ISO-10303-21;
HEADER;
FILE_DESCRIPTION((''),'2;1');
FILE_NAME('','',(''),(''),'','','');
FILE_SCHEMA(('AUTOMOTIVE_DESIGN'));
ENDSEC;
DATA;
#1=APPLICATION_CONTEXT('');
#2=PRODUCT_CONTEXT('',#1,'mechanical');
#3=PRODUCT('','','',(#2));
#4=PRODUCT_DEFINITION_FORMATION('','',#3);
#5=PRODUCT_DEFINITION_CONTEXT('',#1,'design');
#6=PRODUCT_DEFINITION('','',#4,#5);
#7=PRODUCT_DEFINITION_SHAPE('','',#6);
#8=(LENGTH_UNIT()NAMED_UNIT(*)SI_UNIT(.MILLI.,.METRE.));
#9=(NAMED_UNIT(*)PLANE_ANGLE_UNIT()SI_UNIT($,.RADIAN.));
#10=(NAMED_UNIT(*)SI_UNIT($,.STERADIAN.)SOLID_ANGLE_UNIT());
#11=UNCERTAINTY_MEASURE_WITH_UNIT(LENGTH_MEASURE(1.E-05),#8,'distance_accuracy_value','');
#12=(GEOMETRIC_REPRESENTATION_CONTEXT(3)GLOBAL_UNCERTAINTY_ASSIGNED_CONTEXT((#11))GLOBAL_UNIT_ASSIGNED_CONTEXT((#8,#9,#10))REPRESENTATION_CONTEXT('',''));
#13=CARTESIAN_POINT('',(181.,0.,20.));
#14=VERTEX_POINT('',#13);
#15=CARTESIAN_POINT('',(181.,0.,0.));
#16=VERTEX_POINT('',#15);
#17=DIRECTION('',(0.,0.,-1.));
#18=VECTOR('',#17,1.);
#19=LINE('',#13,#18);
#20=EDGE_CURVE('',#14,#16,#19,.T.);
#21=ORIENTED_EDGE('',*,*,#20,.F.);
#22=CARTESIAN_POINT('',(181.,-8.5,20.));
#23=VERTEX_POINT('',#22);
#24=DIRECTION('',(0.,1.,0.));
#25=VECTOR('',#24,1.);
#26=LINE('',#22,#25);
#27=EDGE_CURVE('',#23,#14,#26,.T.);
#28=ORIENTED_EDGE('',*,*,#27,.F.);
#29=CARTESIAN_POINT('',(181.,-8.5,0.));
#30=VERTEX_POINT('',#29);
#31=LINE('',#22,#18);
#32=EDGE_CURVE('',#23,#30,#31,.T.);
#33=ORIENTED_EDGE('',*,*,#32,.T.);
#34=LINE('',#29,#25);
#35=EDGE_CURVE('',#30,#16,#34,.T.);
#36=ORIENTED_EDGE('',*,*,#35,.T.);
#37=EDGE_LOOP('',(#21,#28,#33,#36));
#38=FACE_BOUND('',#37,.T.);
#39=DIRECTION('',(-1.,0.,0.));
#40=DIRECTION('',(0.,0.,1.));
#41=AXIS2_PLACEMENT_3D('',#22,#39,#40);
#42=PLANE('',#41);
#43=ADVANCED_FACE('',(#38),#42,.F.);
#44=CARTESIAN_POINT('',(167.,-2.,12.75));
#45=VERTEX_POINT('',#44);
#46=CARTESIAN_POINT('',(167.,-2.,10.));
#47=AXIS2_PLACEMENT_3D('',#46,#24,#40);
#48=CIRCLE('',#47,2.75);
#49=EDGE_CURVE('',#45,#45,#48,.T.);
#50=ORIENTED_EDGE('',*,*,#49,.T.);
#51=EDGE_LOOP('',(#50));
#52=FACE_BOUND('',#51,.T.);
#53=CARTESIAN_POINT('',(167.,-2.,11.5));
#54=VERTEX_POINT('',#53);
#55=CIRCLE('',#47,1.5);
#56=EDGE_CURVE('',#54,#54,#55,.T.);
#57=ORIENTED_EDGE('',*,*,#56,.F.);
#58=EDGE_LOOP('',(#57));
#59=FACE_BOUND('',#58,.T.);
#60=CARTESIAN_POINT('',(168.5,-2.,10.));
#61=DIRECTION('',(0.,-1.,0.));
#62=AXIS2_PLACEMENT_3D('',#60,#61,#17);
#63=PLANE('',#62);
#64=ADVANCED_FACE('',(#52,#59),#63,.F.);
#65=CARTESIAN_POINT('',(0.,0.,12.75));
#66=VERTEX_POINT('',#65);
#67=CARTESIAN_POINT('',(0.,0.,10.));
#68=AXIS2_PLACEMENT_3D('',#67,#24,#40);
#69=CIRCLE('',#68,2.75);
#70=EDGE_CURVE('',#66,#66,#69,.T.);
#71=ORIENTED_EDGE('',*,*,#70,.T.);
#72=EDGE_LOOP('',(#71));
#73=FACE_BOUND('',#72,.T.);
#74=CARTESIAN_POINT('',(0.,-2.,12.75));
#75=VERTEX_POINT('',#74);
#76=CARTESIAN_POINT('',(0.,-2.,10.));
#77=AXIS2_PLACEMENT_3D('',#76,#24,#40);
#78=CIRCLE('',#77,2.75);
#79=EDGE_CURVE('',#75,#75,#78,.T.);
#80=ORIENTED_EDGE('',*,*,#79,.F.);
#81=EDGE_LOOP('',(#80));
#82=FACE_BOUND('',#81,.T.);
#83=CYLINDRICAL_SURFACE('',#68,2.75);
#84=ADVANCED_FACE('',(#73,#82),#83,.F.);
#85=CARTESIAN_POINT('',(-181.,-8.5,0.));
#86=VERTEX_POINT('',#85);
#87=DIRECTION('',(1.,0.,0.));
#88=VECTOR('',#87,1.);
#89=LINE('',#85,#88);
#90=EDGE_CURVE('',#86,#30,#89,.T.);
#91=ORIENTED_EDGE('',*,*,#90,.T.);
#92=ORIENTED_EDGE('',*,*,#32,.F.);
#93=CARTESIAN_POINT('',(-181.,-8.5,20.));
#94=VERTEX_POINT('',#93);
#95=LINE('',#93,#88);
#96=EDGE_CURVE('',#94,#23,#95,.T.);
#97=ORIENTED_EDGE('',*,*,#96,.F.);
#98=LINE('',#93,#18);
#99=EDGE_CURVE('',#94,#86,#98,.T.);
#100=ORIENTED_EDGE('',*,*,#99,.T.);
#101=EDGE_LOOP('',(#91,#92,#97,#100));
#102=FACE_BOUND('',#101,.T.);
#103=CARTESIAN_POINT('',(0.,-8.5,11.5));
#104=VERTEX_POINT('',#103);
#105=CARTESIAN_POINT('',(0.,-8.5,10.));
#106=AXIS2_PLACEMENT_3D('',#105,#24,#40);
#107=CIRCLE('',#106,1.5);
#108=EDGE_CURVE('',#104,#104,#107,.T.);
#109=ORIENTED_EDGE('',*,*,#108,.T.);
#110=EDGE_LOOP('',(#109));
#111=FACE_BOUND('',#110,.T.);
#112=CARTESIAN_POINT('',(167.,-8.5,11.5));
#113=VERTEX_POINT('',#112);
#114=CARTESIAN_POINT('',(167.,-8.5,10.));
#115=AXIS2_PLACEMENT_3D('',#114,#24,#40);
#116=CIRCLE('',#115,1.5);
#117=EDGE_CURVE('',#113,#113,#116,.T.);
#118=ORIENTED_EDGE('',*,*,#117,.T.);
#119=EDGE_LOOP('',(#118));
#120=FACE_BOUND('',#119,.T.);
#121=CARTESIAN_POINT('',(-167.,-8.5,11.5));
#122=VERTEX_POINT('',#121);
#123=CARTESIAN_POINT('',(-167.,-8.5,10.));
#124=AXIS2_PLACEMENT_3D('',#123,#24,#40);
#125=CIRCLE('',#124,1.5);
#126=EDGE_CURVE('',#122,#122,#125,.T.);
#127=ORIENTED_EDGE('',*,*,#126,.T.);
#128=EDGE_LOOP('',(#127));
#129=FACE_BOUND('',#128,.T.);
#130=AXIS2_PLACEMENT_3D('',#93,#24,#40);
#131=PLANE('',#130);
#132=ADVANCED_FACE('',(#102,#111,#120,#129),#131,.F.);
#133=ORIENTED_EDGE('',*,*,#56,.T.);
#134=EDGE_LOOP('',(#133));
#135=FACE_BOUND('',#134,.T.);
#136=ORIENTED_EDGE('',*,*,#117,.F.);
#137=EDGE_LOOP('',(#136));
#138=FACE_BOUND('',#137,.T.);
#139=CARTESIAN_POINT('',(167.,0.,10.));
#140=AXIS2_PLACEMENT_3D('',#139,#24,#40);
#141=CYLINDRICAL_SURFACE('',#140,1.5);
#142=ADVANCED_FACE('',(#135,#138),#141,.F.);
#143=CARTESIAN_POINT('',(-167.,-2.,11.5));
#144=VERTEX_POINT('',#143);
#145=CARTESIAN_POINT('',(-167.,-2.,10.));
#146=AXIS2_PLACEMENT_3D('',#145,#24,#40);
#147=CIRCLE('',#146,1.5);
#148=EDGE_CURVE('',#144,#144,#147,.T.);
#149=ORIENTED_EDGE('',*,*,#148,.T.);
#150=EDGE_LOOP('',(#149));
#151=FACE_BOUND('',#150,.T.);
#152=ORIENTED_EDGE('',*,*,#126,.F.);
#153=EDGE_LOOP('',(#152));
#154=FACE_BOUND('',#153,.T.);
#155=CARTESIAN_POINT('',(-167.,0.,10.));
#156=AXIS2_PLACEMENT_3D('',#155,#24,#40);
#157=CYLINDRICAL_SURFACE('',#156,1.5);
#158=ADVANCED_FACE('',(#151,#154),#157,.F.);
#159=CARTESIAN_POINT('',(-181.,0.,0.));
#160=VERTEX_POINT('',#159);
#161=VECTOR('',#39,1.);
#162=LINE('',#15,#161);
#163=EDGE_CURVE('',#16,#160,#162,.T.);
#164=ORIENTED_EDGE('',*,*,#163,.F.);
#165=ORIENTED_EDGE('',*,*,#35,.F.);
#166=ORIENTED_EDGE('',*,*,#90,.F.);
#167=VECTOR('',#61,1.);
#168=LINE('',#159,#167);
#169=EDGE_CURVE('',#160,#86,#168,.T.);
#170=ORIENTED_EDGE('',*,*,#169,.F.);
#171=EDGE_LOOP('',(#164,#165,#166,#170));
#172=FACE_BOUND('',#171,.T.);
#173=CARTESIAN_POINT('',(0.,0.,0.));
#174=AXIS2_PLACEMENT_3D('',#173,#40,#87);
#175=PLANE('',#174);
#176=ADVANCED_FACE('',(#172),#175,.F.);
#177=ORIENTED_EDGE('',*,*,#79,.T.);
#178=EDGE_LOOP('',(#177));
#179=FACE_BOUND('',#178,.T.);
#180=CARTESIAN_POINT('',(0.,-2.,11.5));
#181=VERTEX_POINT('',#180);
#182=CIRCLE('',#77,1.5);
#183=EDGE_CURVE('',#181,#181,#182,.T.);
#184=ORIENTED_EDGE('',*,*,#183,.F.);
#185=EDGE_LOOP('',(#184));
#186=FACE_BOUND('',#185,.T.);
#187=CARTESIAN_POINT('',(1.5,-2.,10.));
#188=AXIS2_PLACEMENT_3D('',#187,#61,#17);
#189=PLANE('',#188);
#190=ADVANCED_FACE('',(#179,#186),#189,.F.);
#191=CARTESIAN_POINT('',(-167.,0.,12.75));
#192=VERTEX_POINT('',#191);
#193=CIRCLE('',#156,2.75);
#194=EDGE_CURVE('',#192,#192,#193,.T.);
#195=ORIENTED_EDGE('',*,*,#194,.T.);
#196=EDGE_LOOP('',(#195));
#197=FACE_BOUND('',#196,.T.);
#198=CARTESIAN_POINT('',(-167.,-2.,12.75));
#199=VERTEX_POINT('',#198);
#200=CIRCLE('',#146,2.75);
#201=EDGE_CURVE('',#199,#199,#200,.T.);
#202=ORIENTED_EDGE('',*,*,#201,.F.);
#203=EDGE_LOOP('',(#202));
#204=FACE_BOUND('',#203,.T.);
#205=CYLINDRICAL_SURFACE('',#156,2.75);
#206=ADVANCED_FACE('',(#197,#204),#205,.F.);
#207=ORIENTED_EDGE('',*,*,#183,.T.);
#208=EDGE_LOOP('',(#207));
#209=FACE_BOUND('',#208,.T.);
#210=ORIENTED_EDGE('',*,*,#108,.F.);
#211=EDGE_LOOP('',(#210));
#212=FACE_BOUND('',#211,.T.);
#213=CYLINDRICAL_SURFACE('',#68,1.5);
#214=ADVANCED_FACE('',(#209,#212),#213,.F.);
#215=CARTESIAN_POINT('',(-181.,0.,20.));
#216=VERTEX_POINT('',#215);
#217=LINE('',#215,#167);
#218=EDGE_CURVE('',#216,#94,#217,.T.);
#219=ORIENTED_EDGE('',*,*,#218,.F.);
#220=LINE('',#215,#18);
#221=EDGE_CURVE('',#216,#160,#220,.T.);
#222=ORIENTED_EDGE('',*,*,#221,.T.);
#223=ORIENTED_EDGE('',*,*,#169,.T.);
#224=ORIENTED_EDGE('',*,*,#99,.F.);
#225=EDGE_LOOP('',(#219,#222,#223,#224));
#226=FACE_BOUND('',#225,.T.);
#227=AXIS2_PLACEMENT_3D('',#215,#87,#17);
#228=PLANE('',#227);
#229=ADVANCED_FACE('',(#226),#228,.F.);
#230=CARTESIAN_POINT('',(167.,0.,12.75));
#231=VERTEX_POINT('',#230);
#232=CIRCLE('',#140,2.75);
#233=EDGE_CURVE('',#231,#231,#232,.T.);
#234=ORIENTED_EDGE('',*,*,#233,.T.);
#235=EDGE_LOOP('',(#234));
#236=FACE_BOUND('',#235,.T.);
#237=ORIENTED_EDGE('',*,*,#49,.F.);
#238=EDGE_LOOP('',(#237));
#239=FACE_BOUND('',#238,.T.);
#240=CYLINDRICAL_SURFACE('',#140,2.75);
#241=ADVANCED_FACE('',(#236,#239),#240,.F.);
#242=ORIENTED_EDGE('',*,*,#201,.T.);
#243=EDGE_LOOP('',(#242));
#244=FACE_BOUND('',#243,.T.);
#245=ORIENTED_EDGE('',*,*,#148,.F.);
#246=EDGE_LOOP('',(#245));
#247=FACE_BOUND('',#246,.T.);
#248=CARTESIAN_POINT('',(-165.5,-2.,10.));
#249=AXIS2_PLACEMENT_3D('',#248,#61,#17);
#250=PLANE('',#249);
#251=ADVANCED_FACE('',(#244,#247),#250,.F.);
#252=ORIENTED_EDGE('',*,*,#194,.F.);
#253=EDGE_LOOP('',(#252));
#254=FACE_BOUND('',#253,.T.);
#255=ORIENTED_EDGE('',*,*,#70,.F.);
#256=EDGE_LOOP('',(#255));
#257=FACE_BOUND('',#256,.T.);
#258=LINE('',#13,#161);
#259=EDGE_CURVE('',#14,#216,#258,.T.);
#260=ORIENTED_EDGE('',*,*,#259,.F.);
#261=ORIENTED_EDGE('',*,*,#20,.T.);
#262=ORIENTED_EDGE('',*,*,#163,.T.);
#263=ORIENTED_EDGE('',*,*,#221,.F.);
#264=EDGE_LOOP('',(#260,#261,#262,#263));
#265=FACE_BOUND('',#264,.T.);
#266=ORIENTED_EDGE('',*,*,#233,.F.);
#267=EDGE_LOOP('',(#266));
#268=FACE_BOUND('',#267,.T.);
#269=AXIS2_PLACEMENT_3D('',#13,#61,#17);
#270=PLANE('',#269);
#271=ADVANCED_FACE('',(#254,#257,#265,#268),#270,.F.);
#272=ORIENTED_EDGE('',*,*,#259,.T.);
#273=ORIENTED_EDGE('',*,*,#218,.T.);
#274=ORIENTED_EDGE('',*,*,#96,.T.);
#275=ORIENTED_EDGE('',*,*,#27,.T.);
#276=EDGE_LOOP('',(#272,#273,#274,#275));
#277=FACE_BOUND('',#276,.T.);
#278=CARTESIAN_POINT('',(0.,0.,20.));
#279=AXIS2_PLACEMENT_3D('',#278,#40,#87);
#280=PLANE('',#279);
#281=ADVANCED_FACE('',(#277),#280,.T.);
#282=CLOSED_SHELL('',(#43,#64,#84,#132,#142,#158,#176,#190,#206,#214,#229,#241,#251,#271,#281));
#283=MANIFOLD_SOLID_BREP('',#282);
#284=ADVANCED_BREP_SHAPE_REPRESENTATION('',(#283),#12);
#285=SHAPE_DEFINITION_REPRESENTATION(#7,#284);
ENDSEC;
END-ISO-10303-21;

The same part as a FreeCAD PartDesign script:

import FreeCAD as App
import Part
import Sketcher

V = App.Vector

doc = App.newDocument("Part")
body = doc.addObject("PartDesign::Body", "Body")

sketch1 = doc.addObject("Sketcher::SketchObject", "Sketch")
body.addObject(sketch1)
sketch1.AttachmentSupport = (doc.XY_Plane, [""])
sketch1.MapMode = "FlatFace"
sketch1.addGeometry([
    Part.LineSegment(V(-181, 0, 0), V(-181, -8, 0)),
    Part.LineSegment(V(-181, -8, 0), V(181, -8, 0)),
    Part.LineSegment(V(181, -8, 0), V(181, 0, 0)),
    Part.LineSegment(V(181, 0, 0), V(-181, 0, 0)),
], False)
sketch1.addConstraint([
    Sketcher.Constraint("Coincident", 0, 2, 1, 1),
    Sketcher.Constraint("Coincident", 1, 2, 2, 1),
    Sketcher.Constraint("Coincident", 2, 2, 3, 1),
    Sketcher.Constraint("Coincident", 3, 2, 0, 1),
    Sketcher.Constraint("Vertical", 0),
    Sketcher.Constraint("Horizontal", 1),
    Sketcher.Constraint("Vertical", 2),
    Sketcher.Constraint("Horizontal", 3),
    Sketcher.Constraint("Symmetric", 2, 2, 3, 2, -1, 1),
    Sketcher.Constraint("DistanceX", 1, 1, 1, 2, 362.0),
    Sketcher.Constraint("DistanceY", 0, 2, 0, 1, 8.5),
])
pad1 = doc.addObject("PartDesign::Pad", "Pad")
body.addObject(pad1)
pad1.Profile = sketch1
pad1.Length = 20

sketch2 = doc.addObject("Sketcher::SketchObject", "Sketch001")
body.addObject(sketch2)
sketch2.AttachmentSupport = (doc.XZ_Plane, [""])
sketch2.MapMode = "FlatFace"
sketch2.addGeometry([
    Part.Circle(V(-167, 10, 0), V(0, 0, 1), 1.5),
    Part.Circle(V(167, 10, 0), V(0, 0, 1), 1.5),
    Part.Circle(V(0, 10, 0), V(0, 0, 1), 1.5),
], False)
sketch2.addConstraint([
    Sketcher.Constraint("Equal", 0, 1),
    Sketcher.Constraint("Equal", 1, 2),
    Sketcher.Constraint("Symmetric", 0, 3, 1, 3, -2),
    Sketcher.Constraint("PointOnObject", 2, 3, -2),
    Sketcher.Constraint("Horizontal", 1, 3, 2, 3),
    Sketcher.Constraint("Diameter", 0, 3.0),
    Sketcher.Constraint("DistanceX", 0, 3, -1, 1, 167.0),
    Sketcher.Constraint("DistanceY", -1, 1, 0, 3, 10.0),
])
doc.recompute()
hole = doc.addObject("PartDesign::Hole", "Hole")
body.addObject(hole)
hole.Profile = sketch2
hole.ThreadType = "None"
hole.Diameter = 3
hole.DepthType = "ThroughAll"
hole.HoleCutType = "Counterbore"
hole.HoleCutDiameter = 5.5
hole.HoleCutDepth = 2
hole.Reversed = True

doc.recompute()
